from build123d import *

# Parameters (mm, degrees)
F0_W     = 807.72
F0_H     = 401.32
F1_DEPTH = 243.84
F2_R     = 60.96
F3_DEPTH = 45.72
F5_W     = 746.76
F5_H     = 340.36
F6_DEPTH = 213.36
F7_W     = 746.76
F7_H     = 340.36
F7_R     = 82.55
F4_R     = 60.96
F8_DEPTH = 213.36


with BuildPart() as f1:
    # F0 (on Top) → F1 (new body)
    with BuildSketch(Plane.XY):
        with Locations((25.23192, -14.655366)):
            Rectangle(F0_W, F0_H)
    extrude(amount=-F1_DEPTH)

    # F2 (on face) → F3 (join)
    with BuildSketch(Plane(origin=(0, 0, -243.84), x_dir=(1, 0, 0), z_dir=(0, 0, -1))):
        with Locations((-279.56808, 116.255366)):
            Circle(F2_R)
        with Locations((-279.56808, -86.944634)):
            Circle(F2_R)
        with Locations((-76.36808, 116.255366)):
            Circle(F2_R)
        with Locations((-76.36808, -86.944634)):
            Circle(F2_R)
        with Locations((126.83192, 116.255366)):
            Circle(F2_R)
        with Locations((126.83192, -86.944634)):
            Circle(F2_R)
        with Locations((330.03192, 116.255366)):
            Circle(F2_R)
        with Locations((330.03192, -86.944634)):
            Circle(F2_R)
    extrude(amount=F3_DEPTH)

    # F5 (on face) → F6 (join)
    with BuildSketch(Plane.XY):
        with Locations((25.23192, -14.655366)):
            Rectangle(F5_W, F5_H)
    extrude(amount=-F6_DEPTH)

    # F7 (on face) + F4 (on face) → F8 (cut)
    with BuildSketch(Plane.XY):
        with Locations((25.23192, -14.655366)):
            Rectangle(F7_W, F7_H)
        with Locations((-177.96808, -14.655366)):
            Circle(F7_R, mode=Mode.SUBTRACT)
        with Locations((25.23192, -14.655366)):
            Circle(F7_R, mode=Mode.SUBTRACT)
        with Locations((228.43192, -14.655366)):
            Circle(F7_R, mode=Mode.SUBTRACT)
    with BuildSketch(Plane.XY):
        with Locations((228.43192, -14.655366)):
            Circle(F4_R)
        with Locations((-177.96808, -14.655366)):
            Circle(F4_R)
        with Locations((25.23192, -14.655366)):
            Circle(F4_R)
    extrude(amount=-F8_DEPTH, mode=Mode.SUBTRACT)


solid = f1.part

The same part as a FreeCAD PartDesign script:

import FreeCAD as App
import Part
import Sketcher
from FreeCAD import Vector
Q = App.Units.Quantity

doc = App.newDocument("Part")
params = doc.addObject("Spreadsheet::Sheet", "Params")
for row, (alias, value) in enumerate([
    ("sketch1_width", "31.8 in"),
    ("sketch1_height", "15.8 in"),
    ("pad1_length", "9.6 in"),
    ("sketch2_diameter", "4.8 in"),
    ("pad2_length", "1.8 in"),
    ("sketch3_width", "29.4 in"),
    ("sketch3_height", "13.4 in"),
    ("pad3_length", "8.4 in"),
    ("sketch4_diameter", "6.5 in"),
    ("sketch4_diameter2", "4.8 in"),
    ("sketch4_width", "29.4 in"),
    ("sketch4_height", "13.4 in"),
    ("pocket1_length", "8.4 in"),
], start=1):
    params.set(f"A{row}", alias)
    params.set(f"B{row}", "=" + value)
    params.setAlias(f"B{row}", alias)

body = doc.addObject("PartDesign::Body", "Body")

sketch1 = body.newObject("Sketcher::SketchObject", "Sketch")
sketch1.AttachmentSupport = (doc.getObject("XY_Plane"), [""])
sketch1.MapMode = "FlatFace"
sketch1.addGeometry([
    Part.LineSegment(Vector(-378.62808, 186.004634, 0), Vector(-378.62808, -215.315366, 0)),
    Part.LineSegment(Vector(-378.62808, -215.315366, 0), Vector(429.09192, -215.315366, 0)),
    Part.LineSegment(Vector(429.09192, -215.315366, 0), Vector(429.09192, 186.004634, 0)),
    Part.LineSegment(Vector(429.09192, 186.004634, 0), Vector(-378.62808, 186.004634, 0)),
], False)
sketch1.addConstraint([
    Sketcher.Constraint("Coincident", 0, 2, 1, 1),
    Sketcher.Constraint("Coincident", 1, 2, 2, 1),
    Sketcher.Constraint("Coincident", 2, 2, 3, 1),
    Sketcher.Constraint("Coincident", 3, 2, 0, 1),
    Sketcher.Constraint("Vertical", 0),
    Sketcher.Constraint("Horizontal", 1),
    Sketcher.Constraint("Vertical", 2),
    Sketcher.Constraint("Horizontal", 3),
    Sketcher.Constraint("DistanceX", 1, 1, 1, 2, Q("31.8 in")),
    Sketcher.Constraint("DistanceY", 0, 2, 0, 1, Q("15.8 in")),
    Sketcher.Constraint("DistanceX", 0, 2, -1, 1, 378.62808),
    Sketcher.Constraint("DistanceY", 0, 2, -1, 1, 215.315366),
])
sketch1.setExpression("Constraints[8]", "Params.sketch1_width")
sketch1.setExpression("Constraints[9]", "Params.sketch1_height")
pad1 = body.newObject("PartDesign::Pad", "Pad")
pad1.Profile = sketch1
pad1.setExpression("Length", "Params.pad1_length")
pad1.Reversed = True

sketch2 = body.newObject("Sketcher::SketchObject", "Sketch001")
sketch2.AttachmentSupport = (doc.getObject("XY_Plane"), [""])
sketch2.MapMode = "FlatFace"
sketch2.AttachmentOffset = App.Placement(Vector(0, 0, -9.6 * 25.4), App.Rotation())
sketch2.addGeometry([
    Part.Circle(Vector(-279.56808, -116.255366, 0), Vector(0, 0, 1), 60.96),
    Part.Circle(Vector(-279.56808, 86.944634, 0), Vector(0, 0, 1), 60.96),
    Part.Circle(Vector(-76.36808, -116.255366, 0), Vector(0, 0, 1), 60.96),
    Part.Circle(Vector(-76.36808, 86.944634, 0), Vector(0, 0, 1), 60.96),
    Part.Circle(Vector(126.83192, -116.255366, 0), Vector(0, 0, 1), 60.96),
    Part.Circle(Vector(126.83192, 86.944634, 0), Vector(0, 0, 1), 60.96),
    Part.Circle(Vector(330.03192, -116.255366, 0), Vector(0, 0, 1), 60.96),
    Part.Circle(Vector(330.03192, 86.944634, 0), Vector(0, 0, 1), 60.96),
], False)
sketch2.addConstraint([
    Sketcher.Constraint("Equal", 0, 1),
    Sketcher.Constraint("Equal", 1, 2),
    Sketcher.Constraint("Equal", 2, 3),
    Sketcher.Constraint("Equal", 3, 4),
    Sketcher.Constraint("Equal", 4, 5),
    Sketcher.Constraint("Equal", 5, 6),
    Sketcher.Constraint("Equal", 6, 7),
    Sketcher.Constraint("Horizontal", 0, 3, 2, 3),
    Sketcher.Constraint("Horizontal", 1, 3, 3, 3),
    Sketcher.Constraint("Horizontal", 2, 3, 4, 3),
    Sketcher.Constraint("Horizontal", 3, 3, 5, 3),
    Sketcher.Constraint("Horizontal", 4, 3, 6, 3),
    Sketcher.Constraint("Horizontal", 5, 3, 7, 3),
    Sketcher.Constraint("Vertical", 0, 3, 1, 3),
    Sketcher.Constraint("Vertical", 2, 3, 3, 3),
    Sketcher.Constraint("Vertical", 4, 3, 5, 3),
    Sketcher.Constraint("Vertical", 6, 3, 7, 3),
    Sketcher.Constraint("Diameter", 0, Q("4.8 in")),
    Sketcher.Constraint("DistanceY", 0, 3, 1, 3, Q("8 in")),
    Sketcher.Constraint("DistanceX", 0, 3, 2, 3, Q("8 in")),
    Sketcher.Constraint("DistanceX", 2, 3, 4, 3, Q("8 in")),
    Sketcher.Constraint("DistanceX", 4, 3, 6, 3, Q("8 in")),
    Sketcher.Constraint("DistanceX", 0, 3, -1, 1, 279.56808),
    Sketcher.Constraint("DistanceY", 0, 3, -1, 1, 116.255366),
])
sketch2.setExpression("Constraints[17]", "Params.sketch2_diameter")
pad2 = body.newObject("PartDesign::Pad", "Pad001")
pad2.Profile = sketch2
pad2.setExpression("Length", "Params.pad2_length")
pad2.Reversed = True

sketch3 = body.newObject("Sketcher::SketchObject", "Sketch002")
sketch3.AttachmentSupport = (doc.getObject("XY_Plane"), [""])
sketch3.MapMode = "FlatFace"
sketch3.addGeometry([
    Part.LineSegment(Vector(-348.14808, 155.524634, 0), Vector(-348.14808, -184.835366, 0)),
    Part.LineSegment(Vector(-348.14808, -184.835366, 0), Vector(398.61192, -184.835366, 0)),
    Part.LineSegment(Vector(398.61192, -184.835366, 0), Vector(398.61192, 155.524634, 0)),
    Part.LineSegment(Vector(398.61192, 155.524634, 0), Vector(-348.14808, 155.524634, 0)),
], False)
sketch3.addConstraint([
    Sketcher.Constraint("Coincident", 0, 2, 1, 1),
    Sketcher.Constraint("Coincident", 1, 2, 2, 1),
    Sketcher.Constraint("Coincident", 2, 2, 3, 1),
    Sketcher.Constraint("Coincident", 3, 2, 0, 1),
    Sketcher.Constraint("Vertical", 0),
    Sketcher.Constraint("Horizontal", 1),
    Sketcher.Constraint("Vertical", 2),
    Sketcher.Constraint("Horizontal", 3),
    Sketcher.Constraint("DistanceX", 1, 1, 1, 2, Q("29.4 in")),
    Sketcher.Constraint("DistanceY", 0, 2, 0, 1, Q("13.4 in")),
    Sketcher.Constraint("DistanceX", 0, 2, -1, 1, 348.14808),
    Sketcher.Constraint("DistanceY", 0, 2, -1, 1, 184.835366),
])
sketch3.setExpression("Constraints[8]", "Params.sketch3_width")
sketch3.setExpression("Constraints[9]", "Params.sketch3_height")
pad3 = body.newObject("PartDesign::Pad", "Pad002")
pad3.Profile = sketch3
pad3.setExpression("Length", "Params.pad3_length")
pad3.Reversed = True

sketch4 = body.newObject("Sketcher::SketchObject", "Sketch003")
sketch4.AttachmentSupport = (doc.getObject("XY_Plane"), [""])
sketch4.MapMode = "FlatFace"
sketch4.addGeometry([
    Part.LineSegment(Vector(-348.14808, 155.524634, 0), Vector(-348.14808, -184.835366, 0)),
    Part.LineSegment(Vector(-348.14808, -184.835366, 0), Vector(398.61192, -184.835366, 0)),
    Part.LineSegment(Vector(398.61192, -184.835366, 0), Vector(398.61192, 155.524634, 0)),
    Part.LineSegment(Vector(398.61192, 155.524634, 0), Vector(-348.14808, 155.524634, 0)),
    Part.Circle(Vector(-177.96808, -14.655366, 0), Vector(0, 0, 1), 82.55),
    Part.Circle(Vector(25.23192, -14.655366, 0), Vector(0, 0, 1), 82.55),
    Part.Circle(Vector(228.43192, -14.655366, 0), Vector(0, 0, 1), 82.55),
    Part.Circle(Vector(228.43192, -14.655366, 0), Vector(0, 0, 1), 60.96),
    Part.Circle(Vector(-177.96808, -14.655366, 0), Vector(0, 0, 1), 60.96),
    Part.Circle(Vector(25.23192, -14.655366, 0), Vector(0, 0, 1), 60.96),
], False)
sketch4.addConstraint([
    Sketcher.Constraint("Coincident", 0, 2, 1, 1),
    Sketcher.Constraint("Coincident", 1, 2, 2, 1),
    Sketcher.Constraint("Coincident", 2, 2, 3, 1),
    Sketcher.Constraint("Coincident", 3, 2, 0, 1),
    Sketcher.Constraint("Vertical", 0),
    Sketcher.Constraint("Horizontal", 1),
    Sketcher.Constraint("Vertical", 2),
    Sketcher.Constraint("Horizontal", 3),
    Sketcher.Constraint("Coincident", 7, 3, 6, 3),
    Sketcher.Constraint("Coincident", 8, 3, 4, 3),
    Sketcher.Constraint("Coincident", 9, 3, 5, 3),
    Sketcher.Constraint("Equal", 4, 5),
    Sketcher.Constraint("Equal", 5, 6),
    Sketcher.Constraint("Equal", 7, 8),
    Sketcher.Constraint("Equal", 8, 9),
    Sketcher.Constraint("Horizontal", 4, 3, 5, 3),
    Sketcher.Constraint("Horizontal", 5, 3, 6, 3),
    Sketcher.Constraint("Diameter", 4, Q("6.5 in")),
    Sketcher.Constraint("Diameter", 7, Q("4.8 in")),
    Sketcher.Constraint("DistanceX", 1, 1, 1, 2, Q("29.4 in")),
    Sketcher.Constraint("DistanceY", 0, 2, 0, 1, Q("13.4 in")),
    Sketcher.Constraint("DistanceX", 4, 3, 5, 3, Q("8 in")),
    Sketcher.Constraint("DistanceX", 5, 3, 6, 3, Q("8 in")),
    Sketcher.Constraint("DistanceX", 0, 2, 4, 3, Q("6.7 in")),
    Sketcher.Constraint("DistanceY", 0, 2, 4, 3, Q("6.7 in")),
    Sketcher.Constraint("DistanceX", 4, 3, -1, 1, 177.96808),
    Sketcher.Constraint("DistanceY", 4, 3, -1, 1, 14.655366),
])
sketch4.setExpression("Constraints[17]", "Params.sketch4_diameter")
sketch4.setExpression("Constraints[18]", "Params.sketch4_diameter2")
sketch4.setExpression("Constraints[19]", "Params.sketch4_width")
sketch4.setExpression("Constraints[20]", "Params.sketch4_height")
pocket1 = body.newObject("PartDesign::Pocket", "Pocket")
pocket1.Profile = sketch4
pocket1.setExpression("Length", "Params.pocket1_length")

doc.recompute()
